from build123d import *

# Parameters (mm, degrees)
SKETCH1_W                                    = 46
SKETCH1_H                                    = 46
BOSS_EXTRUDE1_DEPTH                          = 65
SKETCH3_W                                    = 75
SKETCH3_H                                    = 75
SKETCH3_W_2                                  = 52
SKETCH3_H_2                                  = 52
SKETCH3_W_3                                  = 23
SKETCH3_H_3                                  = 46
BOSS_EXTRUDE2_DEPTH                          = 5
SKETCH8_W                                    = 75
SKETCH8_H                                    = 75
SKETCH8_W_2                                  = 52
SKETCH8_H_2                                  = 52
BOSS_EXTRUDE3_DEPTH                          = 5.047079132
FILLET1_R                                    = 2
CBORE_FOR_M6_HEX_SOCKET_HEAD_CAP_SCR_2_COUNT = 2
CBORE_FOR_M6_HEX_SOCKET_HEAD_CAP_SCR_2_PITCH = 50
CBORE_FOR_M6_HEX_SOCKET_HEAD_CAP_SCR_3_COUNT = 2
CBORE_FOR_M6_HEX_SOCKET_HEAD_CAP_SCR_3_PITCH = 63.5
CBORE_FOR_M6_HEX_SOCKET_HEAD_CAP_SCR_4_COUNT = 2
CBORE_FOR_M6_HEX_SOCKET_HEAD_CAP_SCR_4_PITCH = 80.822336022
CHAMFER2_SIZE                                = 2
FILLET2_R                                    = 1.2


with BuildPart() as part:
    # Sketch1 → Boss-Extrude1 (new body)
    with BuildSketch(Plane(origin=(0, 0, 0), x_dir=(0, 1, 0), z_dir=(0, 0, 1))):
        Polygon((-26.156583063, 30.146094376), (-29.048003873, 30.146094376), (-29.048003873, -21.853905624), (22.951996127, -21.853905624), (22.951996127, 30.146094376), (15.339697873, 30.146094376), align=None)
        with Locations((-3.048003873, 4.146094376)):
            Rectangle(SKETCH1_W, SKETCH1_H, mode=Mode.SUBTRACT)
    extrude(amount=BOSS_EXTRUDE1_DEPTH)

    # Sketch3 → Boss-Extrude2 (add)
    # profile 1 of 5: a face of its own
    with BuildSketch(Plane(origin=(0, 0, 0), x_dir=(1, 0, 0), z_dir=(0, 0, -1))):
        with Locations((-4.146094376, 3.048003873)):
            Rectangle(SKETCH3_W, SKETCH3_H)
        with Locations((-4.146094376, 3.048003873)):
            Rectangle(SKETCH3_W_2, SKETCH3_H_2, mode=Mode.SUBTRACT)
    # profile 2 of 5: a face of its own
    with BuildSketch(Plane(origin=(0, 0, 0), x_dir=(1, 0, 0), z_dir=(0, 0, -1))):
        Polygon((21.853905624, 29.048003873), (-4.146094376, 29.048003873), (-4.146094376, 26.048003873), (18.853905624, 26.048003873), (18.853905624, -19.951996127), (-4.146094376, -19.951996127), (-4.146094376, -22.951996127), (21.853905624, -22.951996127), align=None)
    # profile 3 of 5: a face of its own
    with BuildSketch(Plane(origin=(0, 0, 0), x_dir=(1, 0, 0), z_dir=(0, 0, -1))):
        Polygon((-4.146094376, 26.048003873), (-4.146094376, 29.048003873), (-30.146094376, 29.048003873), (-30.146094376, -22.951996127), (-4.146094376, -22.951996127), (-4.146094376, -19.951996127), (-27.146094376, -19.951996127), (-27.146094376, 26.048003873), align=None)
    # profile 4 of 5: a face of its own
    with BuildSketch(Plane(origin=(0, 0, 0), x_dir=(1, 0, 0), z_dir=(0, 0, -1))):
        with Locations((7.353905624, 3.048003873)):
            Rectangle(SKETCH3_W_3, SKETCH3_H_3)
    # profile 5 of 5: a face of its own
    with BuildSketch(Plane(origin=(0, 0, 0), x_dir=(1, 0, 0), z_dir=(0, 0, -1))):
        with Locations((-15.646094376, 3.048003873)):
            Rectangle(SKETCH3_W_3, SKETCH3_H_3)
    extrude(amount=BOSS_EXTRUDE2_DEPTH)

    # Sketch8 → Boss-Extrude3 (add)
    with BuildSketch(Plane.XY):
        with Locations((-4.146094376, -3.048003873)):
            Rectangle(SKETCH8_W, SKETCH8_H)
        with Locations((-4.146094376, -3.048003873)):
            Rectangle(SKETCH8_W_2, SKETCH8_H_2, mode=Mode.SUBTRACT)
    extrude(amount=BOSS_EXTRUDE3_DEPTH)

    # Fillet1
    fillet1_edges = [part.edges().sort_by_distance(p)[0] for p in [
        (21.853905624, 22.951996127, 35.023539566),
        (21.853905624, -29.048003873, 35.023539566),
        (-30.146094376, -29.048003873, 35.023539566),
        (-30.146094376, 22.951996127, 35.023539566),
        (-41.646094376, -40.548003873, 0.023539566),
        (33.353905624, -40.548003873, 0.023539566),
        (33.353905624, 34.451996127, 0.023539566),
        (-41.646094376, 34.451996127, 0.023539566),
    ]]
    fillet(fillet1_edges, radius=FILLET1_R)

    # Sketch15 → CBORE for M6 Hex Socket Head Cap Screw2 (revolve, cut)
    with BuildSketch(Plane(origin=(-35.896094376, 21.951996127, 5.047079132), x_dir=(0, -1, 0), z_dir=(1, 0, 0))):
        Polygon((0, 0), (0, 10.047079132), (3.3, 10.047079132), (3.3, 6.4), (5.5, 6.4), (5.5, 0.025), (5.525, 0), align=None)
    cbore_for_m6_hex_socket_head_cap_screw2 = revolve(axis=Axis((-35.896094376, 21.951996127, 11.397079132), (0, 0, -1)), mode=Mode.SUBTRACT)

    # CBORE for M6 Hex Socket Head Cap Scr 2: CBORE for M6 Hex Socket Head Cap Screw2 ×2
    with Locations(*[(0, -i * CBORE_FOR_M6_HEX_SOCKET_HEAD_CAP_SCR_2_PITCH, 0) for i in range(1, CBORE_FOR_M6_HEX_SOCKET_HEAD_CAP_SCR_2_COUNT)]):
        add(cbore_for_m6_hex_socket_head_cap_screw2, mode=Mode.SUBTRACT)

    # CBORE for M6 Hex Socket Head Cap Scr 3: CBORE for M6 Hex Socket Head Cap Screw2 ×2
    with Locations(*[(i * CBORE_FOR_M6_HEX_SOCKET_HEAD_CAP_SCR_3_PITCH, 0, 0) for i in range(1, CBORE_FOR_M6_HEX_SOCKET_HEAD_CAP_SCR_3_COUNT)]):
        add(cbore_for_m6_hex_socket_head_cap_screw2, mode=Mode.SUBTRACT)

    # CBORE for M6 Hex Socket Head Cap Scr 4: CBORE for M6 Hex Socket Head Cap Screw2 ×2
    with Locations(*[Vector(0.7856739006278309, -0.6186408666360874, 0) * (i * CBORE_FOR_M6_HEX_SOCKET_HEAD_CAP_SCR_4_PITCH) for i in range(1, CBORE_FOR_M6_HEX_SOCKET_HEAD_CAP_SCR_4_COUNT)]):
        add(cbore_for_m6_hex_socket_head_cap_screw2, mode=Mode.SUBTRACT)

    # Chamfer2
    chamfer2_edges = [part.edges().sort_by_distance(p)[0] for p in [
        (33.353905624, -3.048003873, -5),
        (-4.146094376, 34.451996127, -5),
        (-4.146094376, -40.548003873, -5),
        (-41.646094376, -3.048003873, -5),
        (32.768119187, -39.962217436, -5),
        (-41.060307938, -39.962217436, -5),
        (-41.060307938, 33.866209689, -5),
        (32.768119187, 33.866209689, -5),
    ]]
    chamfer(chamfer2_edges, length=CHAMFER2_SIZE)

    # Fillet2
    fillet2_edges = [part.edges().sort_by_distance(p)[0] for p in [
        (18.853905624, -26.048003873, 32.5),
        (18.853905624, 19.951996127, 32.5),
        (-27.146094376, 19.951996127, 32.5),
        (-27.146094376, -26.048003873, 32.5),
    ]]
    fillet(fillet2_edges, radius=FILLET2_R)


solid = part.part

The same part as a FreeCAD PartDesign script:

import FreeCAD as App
import Part
import Sketcher
Q = App.Units.Quantity


def edges_at(feature, points):
    """Names of the edges that pass closest to the given points."""
    edges = feature.Shape.Edges
    near = lambda p: min(range(len(edges)), key=lambda i: edges[i].distToShape(Part.Vertex(*p))[0])
    return sorted({f"Edge{near(p) + 1}" for p in points})

doc = App.newDocument("Part")
body = doc.addObject("PartDesign::Body", "Body")

# Sketch on XY plane
sketch1 = body.newObject("Sketcher::SketchObject", "Sketch")
sketch1.AttachmentSupport = (doc.getObject("XY_Plane"), [""])
sketch1.MapMode = "FlatFace"
sketch1.addGeometry([
    Part.LineSegment(App.Vector(-30.146094, -29.048004, 0), App.Vector(21.853906, -29.048004, 0)),  # 0
    Part.LineSegment(App.Vector(21.853906, -29.048004, 0), App.Vector(21.853906, 22.951996, 0)),  # 1
    Part.LineSegment(App.Vector(21.853906, 22.951996, 0), App.Vector(-30.146094, 22.951996, 0)),  # 2
    Part.LineSegment(App.Vector(-30.146094, 22.951996, 0), App.Vector(-30.146094, -29.048004, 0)),  # 3
    Part.LineSegment(App.Vector(18.853906, 19.951996, 0), App.Vector(18.853906, -26.048004, 0)),  # 4
    Part.LineSegment(App.Vector(18.853906, -26.048004, 0), App.Vector(-27.146094, -26.048004, 0)),  # 5
    Part.LineSegment(App.Vector(-27.146094, -26.048004, 0), App.Vector(-27.146094, 19.951996, 0)),  # 6
    Part.LineSegment(App.Vector(-27.146094, 19.951996, 0), App.Vector(18.853906, 19.951996, 0)),  # 7
], False)
sketch1.addConstraint([
    Sketcher.Constraint("Coincident", 0, 2, 1, 1),
    Sketcher.Constraint("Coincident", 1, 2, 2, 1),
    Sketcher.Constraint("Coincident", 2, 2, 3, 1),
    Sketcher.Constraint("Coincident", 3, 2, 0, 1),
    Sketcher.Constraint("Coincident", 4, 2, 5, 1),
    Sketcher.Constraint("Coincident", 5, 2, 6, 1),
    Sketcher.Constraint("Coincident", 6, 2, 7, 1),
    Sketcher.Constraint("Coincident", 7, 2, 4, 1),
    Sketcher.Constraint("Horizontal", 0),
    Sketcher.Constraint("Vertical", 1),
    Sketcher.Constraint("Horizontal", 2),
    Sketcher.Constraint("Vertical", 3),
    Sketcher.Constraint("Vertical", 4),
    Sketcher.Constraint("Horizontal", 5),
    Sketcher.Constraint("Vertical", 6),
    Sketcher.Constraint("Horizontal", 7),
    Sketcher.Constraint("Equal", 2, 1),
    Sketcher.Constraint("Equal", 7, 4),
    Sketcher.Constraint("DistanceX", 0, 1, 0, 2, 52.0),
    Sketcher.Constraint("DistanceX", 5, 2, 5, 1, 46.0),
    Sketcher.Constraint("DistanceX", 4, 2, 0, 2, 3.0),
    Sketcher.Constraint("DistanceY", 0, 2, 4, 2, 3.0),
    Sketcher.Constraint("DistanceX", -1, 1, 0, 2, 21.853906),
    Sketcher.Constraint("DistanceY", 0, 2, -1, 1, 29.048004),
])
pad1 = body.newObject("PartDesign::Pad", "Pad")
pad1.Profile = sketch1
pad1.Length = 65

# Sketch on XY plane
sketch2 = body.newObject("Sketcher::SketchObject", "Sketch001")
sketch2.AttachmentSupport = (doc.getObject("XY_Plane"), [""])
sketch2.MapMode = "FlatFace"
sketch2.addGeometry([
    Part.LineSegment(App.Vector(-41.646094, -40.548004, 0), App.Vector(-41.646094, 34.451996, 0)),
    Part.LineSegment(App.Vector(-41.646094, 34.451996, 0), App.Vector(33.353906, 34.451996, 0)),
    Part.LineSegment(App.Vector(33.353906, 34.451996, 0), App.Vector(33.353906, -40.548004, 0)),
    Part.LineSegment(App.Vector(33.353906, -40.548004, 0), App.Vector(-41.646094, -40.548004, 0)),
], False)
sketch2.addConstraint([
    Sketcher.Constraint("Coincident", 0, 2, 1, 1),
    Sketcher.Constraint("Coincident", 1, 2, 2, 1),
    Sketcher.Constraint("Coincident", 2, 2, 3, 1),
    Sketcher.Constraint("Coincident", 3, 2, 0, 1),
    Sketcher.Constraint("Vertical", 0),
    Sketcher.Constraint("Horizontal", 1),
    Sketcher.Constraint("Vertical", 2),
    Sketcher.Constraint("Horizontal", 3),
    Sketcher.Constraint("Equal", 3, 0),
    Sketcher.Constraint("DistanceX", 1, 1, 1, 2, 75.0),
    Sketcher.Constraint("DistanceX", 0, 2, -1, 1, 41.646094),
    Sketcher.Constraint("DistanceY", -1, 1, 0, 2, 34.451996),
])
pad2 = body.newObject("PartDesign::Pad", "Pad001")
pad2.Profile = sketch2
pad2.Length = 5
pad2.Reversed = True

# Sketch on XY plane
sketch3 = body.newObject("Sketcher::SketchObject", "Sketch002")
sketch3.AttachmentSupport = (doc.getObject("XY_Plane"), [""])
sketch3.MapMode = "FlatFace"
sketch3.addGeometry([
    Part.LineSegment(App.Vector(-41.646094, 34.451996, 0), App.Vector(-41.646094, -40.548004, 0)),  # 0
    Part.LineSegment(App.Vector(-41.646094, -40.548004, 0), App.Vector(33.353906, -40.548004, 0)),  # 1
    Part.LineSegment(App.Vector(33.353906, -40.548004, 0), App.Vector(33.353906, 34.451996, 0)),  # 2
    Part.LineSegment(App.Vector(33.353906, 34.451996, 0), App.Vector(-41.646094, 34.451996, 0)),  # 3
    Part.LineSegment(App.Vector(21.853906, -29.048004, 0), App.Vector(-30.146094, -29.048004, 0)),  # 4
    Part.LineSegment(App.Vector(-30.146094, -29.048004, 0), App.Vector(-30.146094, 22.951996, 0)),  # 5
    Part.LineSegment(App.Vector(-30.146094, 22.951996, 0), App.Vector(21.853906, 22.951996, 0)),  # 6
    Part.LineSegment(App.Vector(21.853906, 22.951996, 0), App.Vector(21.853906, -29.048004, 0)),  # 7
], False)
sketch3.addConstraint([
    Sketcher.Constraint("Coincident", 0, 2, 1, 1),
    Sketcher.Constraint("Coincident", 1, 2, 2, 1),
    Sketcher.Constraint("Coincident", 2, 2, 3, 1),
    Sketcher.Constraint("Coincident", 3, 2, 0, 1),
    Sketcher.Constraint("Coincident", 4, 2, 5, 1),
    Sketcher.Constraint("Coincident", 5, 2, 6, 1),
    Sketcher.Constraint("Coincident", 6, 2, 7, 1),
    Sketcher.Constraint("Coincident", 7, 2, 4, 1),
    Sketcher.Constraint("Vertical", 0),
    Sketcher.Constraint("Horizontal", 1),
    Sketcher.Constraint("Vertical", 2),
    Sketcher.Constraint("Horizontal", 3),
    Sketcher.Constraint("Horizontal", 4),
    Sketcher.Constraint("Vertical", 5),
    Sketcher.Constraint("Horizontal", 6),
    Sketcher.Constraint("Vertical", 7),
    Sketcher.Constraint("Equal", 3, 0),
    Sketcher.Constraint("Equal", 6, 5),
    Sketcher.Constraint("DistanceX", 1, 1, 1, 2, 75.0),
    Sketcher.Constraint("DistanceX", 4, 2, 4, 1, 52.0),
    Sketcher.Constraint("DistanceX", 0, 2, 4, 2, 11.5),
    Sketcher.Constraint("DistanceY", 0, 2, 4, 2, 11.5),
    Sketcher.Constraint("DistanceX", 0, 2, -1, 1, 41.646094),
    Sketcher.Constraint("DistanceY", 0, 2, -1, 1, 40.548004),
])
pad3 = body.newObject("PartDesign::Pad", "Pad002")
pad3.Profile = sketch3
pad3.Length = 5.047079
doc.recompute()

fillet = body.newObject("PartDesign::Fillet", "Fillet")
fillet.Base = (pad3, edges_at(pad3, [
    (21.854, 22.952, 35.024),
    (21.854, -29.048, 35.024),
    (-30.146, -29.048, 35.024),
    (-30.146, 22.952, 35.024),
    (-41.646, -40.548, 0.024),
    (33.354, -40.548, 0.024),
    (33.354, 34.452, 0.024),
    (-41.646, 34.452, 0.024),
]))
fillet.Radius = 2

# Sketch on YZ plane
sketch4 = body.newObject("Sketcher::SketchObject", "Sketch003")
sketch4.AttachmentSupport = (doc.getObject("YZ_Plane"), [""])
sketch4.MapMode = "FlatFace"
sketch4.AttachmentOffset = App.Placement(App.Vector(0, 0, -35.896094), App.Rotation())
sketch4.addGeometry([
    Part.LineSegment(App.Vector(21.951996, -5, 0), App.Vector(21.951996, 5.047079, 0)),  # 0
    Part.LineSegment(App.Vector(21.951996, 5.047079, 0), App.Vector(16.426996, 5.047079, 0)),  # 1
    Part.LineSegment(App.Vector(16.426996, 5.047079, 0), App.Vector(16.451996, 5.022079, 0)),  # 2
    Part.LineSegment(App.Vector(16.451996, 5.022079, 0), App.Vector(16.451996, -1.352921, 0)),  # 3
    Part.LineSegment(App.Vector(16.451996, -1.352921, 0), App.Vector(18.651996, -1.352921, 0)),  # 4
    Part.LineSegment(App.Vector(18.651996, -1.352921, 0), App.Vector(18.651996, -5, 0)),  # 5
    Part.LineSegment(App.Vector(18.651996, -5, 0), App.Vector(21.951996, -5, 0)),  # 6
], False)
sketch4.addGeometry(Part.LineSegment(App.Vector(21.951996, 5.047079, 0), App.Vector(21.951996, -5, 0)), True)  # axis
sketch4.addConstraint([
    Sketcher.Constraint("Coincident", 0, 2, 1, 1),
    Sketcher.Constraint("Coincident", 1, 2, 2, 1),
    Sketcher.Constraint("Coincident", 2, 2, 3, 1),
    Sketcher.Constraint("Coincident", 3, 2, 4, 1),
    Sketcher.Constraint("Coincident", 4, 2, 5, 1),
    Sketcher.Constraint("Coincident", 5, 2, 6, 1),
    Sketcher.Constraint("Coincident", 6, 2, 0, 1),
    Sketcher.Constraint("Vertical", 0),
    Sketcher.Constraint("Horizontal", 1),
    Sketcher.Constraint("Vertical", 3),
    Sketcher.Constraint("Horizontal", 4),
    Sketcher.Constraint("Vertical", 5),
    Sketcher.Constraint("Horizontal", 6),
    Sketcher.Constraint("Vertical", 7),
    Sketcher.Constraint("Coincident", 7, 1, 0, 2),
    Sketcher.Constraint("Horizontal", 5, 2, 7, 2),
    Sketcher.Constraint("Angle", 2, Q("-45 deg")),
    Sketcher.Constraint("DistanceX", 4, 1, 4, 2, 2.2),
    Sketcher.Constraint("DistanceX", 6, 1, 6, 2, 3.3),
    Sketcher.Constraint("DistanceY", 5, 2, -1, 1, 5.0),
    Sketcher.Constraint("DistanceY", 3, 2, 1, 2, 6.4),
    Sketcher.Constraint("DistanceX", 1, 2, 1, 1, 5.525),
    Sketcher.Constraint("DistanceY", 0, 1, 0, 2, 10.047079),
    Sketcher.Constraint("DistanceX", -1, 1, 0, 2, 21.951996),
])
groove = body.newObject("PartDesign::Groove", "Groove")
groove.Profile = sketch4
groove.ReferenceAxis = (sketch4, ["Axis0"])
groove.Angle = 360
doc.recompute()

linearpattern = body.newObject("PartDesign::LinearPattern", "LinearPattern")
linearpattern.Originals = [groove]
linearpattern.Direction = (doc.getObject("Y_Axis"), [""])
linearpattern.Mode = "offset"
linearpattern.Offset = 50
linearpattern.Occurrences = 2
linearpattern.Reversed = True
body.Tip = linearpattern
doc.recompute()

linearpattern2 = body.newObject("PartDesign::LinearPattern", "LinearPattern001")
linearpattern2.Originals = [groove]
linearpattern2.Direction = (doc.getObject("X_Axis"), [""])
linearpattern2.Mode = "offset"
linearpattern2.Offset = 63.5
linearpattern2.Occurrences = 2
body.Tip = linearpattern2
doc.recompute()

datumline = body.newObject("PartDesign::Line", "DatumLine")
datumline.Placement = App.Placement(App.Vector(0, 0, 0), App.Rotation(App.Vector(0, 0, 1), App.Vector(0.785673901, -0.618640867, 0)))
linearpattern3 = body.newObject("PartDesign::LinearPattern", "LinearPattern002")
linearpattern3.Originals = [groove]
linearpattern3.Direction = (datumline, [""])
linearpattern3.Mode = "offset"
linearpattern3.Offset = 80.822336
linearpattern3.Occurrences = 2
body.Tip = linearpattern3
doc.recompute()

chamfer = body.newObject("PartDesign::Chamfer", "Chamfer")
chamfer.Base = (linearpattern3, edges_at(linearpattern3, [
    (33.354, -3.048, -5),
    (-4.146, 34.452, -5),
    (-4.146, -40.548, -5),
    (-41.646, -3.048, -5),
    (32.768, -39.962, -5),
    (-41.06, -39.962, -5),
    (-41.06, 33.866, -5),
    (32.768, 33.866, -5),
]))
chamfer.Size = 2
doc.recompute()

fillet2 = body.newObject("PartDesign::Fillet", "Fillet001")
fillet2.Base = (chamfer, edges_at(chamfer, [
    (18.854, -26.048, 32.5),
    (18.854, 19.952, 32.5),
    (-27.146, 19.952, 32.5),
    (-27.146, -26.048, 32.5),
]))
fillet2.Radius = 1.2

doc.recompute()
